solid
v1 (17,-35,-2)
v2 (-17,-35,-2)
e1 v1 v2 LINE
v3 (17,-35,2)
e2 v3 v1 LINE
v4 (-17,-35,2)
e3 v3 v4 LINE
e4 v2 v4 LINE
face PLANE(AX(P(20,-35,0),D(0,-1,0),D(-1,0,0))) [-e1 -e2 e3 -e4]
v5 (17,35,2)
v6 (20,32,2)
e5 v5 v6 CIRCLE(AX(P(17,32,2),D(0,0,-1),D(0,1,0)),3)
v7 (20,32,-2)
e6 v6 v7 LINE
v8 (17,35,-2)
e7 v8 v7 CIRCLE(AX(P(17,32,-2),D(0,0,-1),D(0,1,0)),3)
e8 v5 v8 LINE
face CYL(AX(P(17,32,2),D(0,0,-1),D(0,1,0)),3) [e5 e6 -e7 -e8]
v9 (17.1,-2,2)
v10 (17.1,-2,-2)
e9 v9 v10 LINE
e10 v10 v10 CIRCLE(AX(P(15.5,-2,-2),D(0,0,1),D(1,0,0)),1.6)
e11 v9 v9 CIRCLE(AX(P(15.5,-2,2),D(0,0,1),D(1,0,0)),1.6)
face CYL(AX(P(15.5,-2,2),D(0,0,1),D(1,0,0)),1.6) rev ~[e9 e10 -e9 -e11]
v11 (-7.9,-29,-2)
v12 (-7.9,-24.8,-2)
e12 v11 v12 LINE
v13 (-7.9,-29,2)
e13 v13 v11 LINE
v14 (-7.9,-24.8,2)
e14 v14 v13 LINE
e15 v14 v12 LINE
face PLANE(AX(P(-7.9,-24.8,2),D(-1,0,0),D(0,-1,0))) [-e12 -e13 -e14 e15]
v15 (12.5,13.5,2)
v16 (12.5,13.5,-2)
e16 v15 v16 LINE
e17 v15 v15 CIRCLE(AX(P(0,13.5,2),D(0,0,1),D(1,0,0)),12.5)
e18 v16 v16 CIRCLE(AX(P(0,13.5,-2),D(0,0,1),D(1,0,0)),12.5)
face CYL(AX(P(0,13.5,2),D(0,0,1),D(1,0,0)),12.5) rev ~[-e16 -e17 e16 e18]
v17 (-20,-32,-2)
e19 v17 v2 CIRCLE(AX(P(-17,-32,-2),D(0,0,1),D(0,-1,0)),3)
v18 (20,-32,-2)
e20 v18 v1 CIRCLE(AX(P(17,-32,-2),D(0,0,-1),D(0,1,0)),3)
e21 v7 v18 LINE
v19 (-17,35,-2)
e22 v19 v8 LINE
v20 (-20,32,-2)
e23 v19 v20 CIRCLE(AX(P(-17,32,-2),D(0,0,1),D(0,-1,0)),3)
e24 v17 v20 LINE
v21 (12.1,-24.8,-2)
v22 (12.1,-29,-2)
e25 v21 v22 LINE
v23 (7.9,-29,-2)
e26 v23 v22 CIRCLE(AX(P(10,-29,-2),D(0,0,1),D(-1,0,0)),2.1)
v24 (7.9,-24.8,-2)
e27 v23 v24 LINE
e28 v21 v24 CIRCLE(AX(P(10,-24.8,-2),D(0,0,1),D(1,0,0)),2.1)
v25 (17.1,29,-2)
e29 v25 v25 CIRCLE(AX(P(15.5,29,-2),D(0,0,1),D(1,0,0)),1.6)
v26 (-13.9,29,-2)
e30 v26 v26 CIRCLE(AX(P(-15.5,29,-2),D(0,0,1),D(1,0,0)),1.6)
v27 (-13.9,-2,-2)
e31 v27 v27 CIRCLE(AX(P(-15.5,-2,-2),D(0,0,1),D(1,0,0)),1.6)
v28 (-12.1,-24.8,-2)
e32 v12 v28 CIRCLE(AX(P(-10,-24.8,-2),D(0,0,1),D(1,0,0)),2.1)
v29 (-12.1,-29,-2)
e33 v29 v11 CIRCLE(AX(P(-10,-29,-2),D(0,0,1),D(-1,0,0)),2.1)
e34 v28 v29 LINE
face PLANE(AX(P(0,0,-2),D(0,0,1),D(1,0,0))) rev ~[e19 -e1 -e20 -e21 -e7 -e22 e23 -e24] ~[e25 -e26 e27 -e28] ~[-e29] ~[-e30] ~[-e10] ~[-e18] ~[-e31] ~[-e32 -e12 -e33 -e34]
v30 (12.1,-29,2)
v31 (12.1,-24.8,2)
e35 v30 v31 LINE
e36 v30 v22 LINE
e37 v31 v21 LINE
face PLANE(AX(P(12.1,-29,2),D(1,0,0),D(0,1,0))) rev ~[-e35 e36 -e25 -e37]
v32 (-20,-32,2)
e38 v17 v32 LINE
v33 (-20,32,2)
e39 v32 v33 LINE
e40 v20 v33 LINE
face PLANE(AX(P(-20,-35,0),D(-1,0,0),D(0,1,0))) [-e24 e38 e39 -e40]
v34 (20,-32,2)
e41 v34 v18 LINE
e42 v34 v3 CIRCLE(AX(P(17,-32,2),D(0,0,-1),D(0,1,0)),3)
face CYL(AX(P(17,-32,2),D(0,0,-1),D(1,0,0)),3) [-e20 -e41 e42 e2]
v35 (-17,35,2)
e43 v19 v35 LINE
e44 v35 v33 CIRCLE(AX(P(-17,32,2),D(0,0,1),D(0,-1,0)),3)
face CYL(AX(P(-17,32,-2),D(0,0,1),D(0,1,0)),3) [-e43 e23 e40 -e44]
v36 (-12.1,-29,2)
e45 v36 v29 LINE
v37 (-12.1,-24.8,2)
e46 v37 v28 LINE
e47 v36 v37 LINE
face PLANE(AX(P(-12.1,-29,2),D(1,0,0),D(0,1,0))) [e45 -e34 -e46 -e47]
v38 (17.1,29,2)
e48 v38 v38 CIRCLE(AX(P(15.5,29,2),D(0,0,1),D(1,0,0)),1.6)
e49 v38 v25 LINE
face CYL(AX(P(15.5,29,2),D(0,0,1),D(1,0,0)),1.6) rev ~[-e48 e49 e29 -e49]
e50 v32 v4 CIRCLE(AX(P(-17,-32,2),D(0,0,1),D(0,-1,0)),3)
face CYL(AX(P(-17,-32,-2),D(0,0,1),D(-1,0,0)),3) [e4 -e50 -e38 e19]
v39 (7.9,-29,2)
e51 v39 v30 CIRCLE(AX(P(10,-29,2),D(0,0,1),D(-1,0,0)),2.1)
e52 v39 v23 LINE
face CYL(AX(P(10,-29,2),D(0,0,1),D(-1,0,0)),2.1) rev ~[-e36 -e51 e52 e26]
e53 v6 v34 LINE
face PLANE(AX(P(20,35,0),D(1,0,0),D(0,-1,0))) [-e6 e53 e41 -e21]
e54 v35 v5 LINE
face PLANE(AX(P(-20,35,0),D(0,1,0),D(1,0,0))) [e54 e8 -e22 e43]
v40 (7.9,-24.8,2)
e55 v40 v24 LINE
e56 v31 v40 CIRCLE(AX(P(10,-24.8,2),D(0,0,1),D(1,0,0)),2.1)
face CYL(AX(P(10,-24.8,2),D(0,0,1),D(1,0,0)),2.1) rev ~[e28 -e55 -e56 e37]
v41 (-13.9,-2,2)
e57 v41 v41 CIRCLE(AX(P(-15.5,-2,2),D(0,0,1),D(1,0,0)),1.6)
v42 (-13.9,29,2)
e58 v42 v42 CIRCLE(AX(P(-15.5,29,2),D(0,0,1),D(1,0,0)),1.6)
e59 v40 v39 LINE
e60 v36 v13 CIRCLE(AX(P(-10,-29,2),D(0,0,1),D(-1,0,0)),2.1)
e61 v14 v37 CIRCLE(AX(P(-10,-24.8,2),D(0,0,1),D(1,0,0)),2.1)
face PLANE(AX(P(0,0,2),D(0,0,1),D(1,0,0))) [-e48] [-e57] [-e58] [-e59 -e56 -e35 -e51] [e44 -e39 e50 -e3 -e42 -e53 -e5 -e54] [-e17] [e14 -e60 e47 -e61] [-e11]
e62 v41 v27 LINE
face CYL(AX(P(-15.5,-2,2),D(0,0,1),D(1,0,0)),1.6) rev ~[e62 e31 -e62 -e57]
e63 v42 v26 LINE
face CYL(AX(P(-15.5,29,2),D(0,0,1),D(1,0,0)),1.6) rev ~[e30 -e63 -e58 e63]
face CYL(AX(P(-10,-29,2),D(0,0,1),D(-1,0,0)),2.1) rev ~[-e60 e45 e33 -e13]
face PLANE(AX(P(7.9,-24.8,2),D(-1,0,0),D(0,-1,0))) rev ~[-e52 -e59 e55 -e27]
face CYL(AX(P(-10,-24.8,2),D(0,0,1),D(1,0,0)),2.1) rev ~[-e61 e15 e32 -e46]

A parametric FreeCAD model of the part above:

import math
import FreeCAD as App
import Part
import Sketcher


def edges_at(feature, points):
    """Names of the edges that pass closest to the given points."""
    edges = feature.Shape.Edges
    near = lambda p: min(range(len(edges)), key=lambda i: edges[i].distToShape(Part.Vertex(*p))[0])
    return sorted({f"Edge{near(p) + 1}" for p in points})

doc = App.newDocument("Part")
body = doc.addObject("PartDesign::Body", "Body")

# Sketch on XY plane
sketch1 = body.newObject("Sketcher::SketchObject", "Sketch")
sketch1.AttachmentSupport = (doc.getObject("XY_Plane"), [""])
sketch1.MapMode = "FlatFace"
sketch1.addGeometry([
    Part.LineSegment(App.Vector(20, 35, 0), App.Vector(-20, 35, 0)),
    Part.LineSegment(App.Vector(-20, 35, 0), App.Vector(-20, -35, 0)),
    Part.LineSegment(App.Vector(-20, -35, 0), App.Vector(20, -35, 0)),
    Part.LineSegment(App.Vector(20, -35, 0), App.Vector(20, 35, 0)),
], False)
sketch1.addConstraint([
    Sketcher.Constraint("Coincident", 0, 2, 1, 1),
    Sketcher.Constraint("Coincident", 1, 2, 2, 1),
    Sketcher.Constraint("Coincident", 2, 2, 3, 1),
    Sketcher.Constraint("Coincident", 3, 2, 0, 1),
    Sketcher.Constraint("Horizontal", 0),
    Sketcher.Constraint("Vertical", 1),
    Sketcher.Constraint("Horizontal", 2),
    Sketcher.Constraint("Vertical", 3),
    Sketcher.Constraint("Symmetric", 0, 2, 2, 2, -1, 1),
    Sketcher.Constraint("DistanceX", 0, 2, 0, 1, 40.0),
    Sketcher.Constraint("DistanceY", 1, 2, 1, 1, 70.0),
])
pad1 = body.newObject("PartDesign::Pad", "Pad")
pad1.Profile = sketch1
pad1.Length = 4
pad1.Midplane = True

# Sketch on XY plane
sketch2 = body.newObject("Sketcher::SketchObject", "Sketch001")
sketch2.AttachmentSupport = (doc.getObject("XY_Plane"), [""])
sketch2.MapMode = "FlatFace"
sketch2.AttachmentOffset = App.Placement(App.Vector(0, 0, 2), App.Rotation())
sketch2.addGeometry([
    Part.Circle(App.Vector(0, 13.5, 0), App.Vector(0, 0, 1), 12.5),  # 0
    Part.Circle(App.Vector(-15.5, 29, 0), App.Vector(0, 0, 1), 1.6),  # 1
    Part.Circle(App.Vector(15.5, 29, 0), App.Vector(0, 0, 1), 1.6),  # 2
    Part.Circle(App.Vector(15.5, -2, 0), App.Vector(0, 0, 1), 1.6),  # 3
    Part.Circle(App.Vector(-15.5, -2, 0), App.Vector(0, 0, 1), 1.6),  # 4
], False)
sketch2.addConstraint([
    Sketcher.Constraint("Equal", 1, 2),
    Sketcher.Constraint("Equal", 2, 3),
    Sketcher.Constraint("Equal", 3, 4),
    Sketcher.Constraint("Symmetric", 1, 3, 2, 3, -2),
    Sketcher.Constraint("Symmetric", 3, 3, 4, 3, -2),
    Sketcher.Constraint("PointOnObject", 0, 3, -2),
    Sketcher.Constraint("Vertical", 2, 3, 3, 3),
    Sketcher.Constraint("Diameter", 0, 25.0),
    Sketcher.Constraint("Diameter", 1, 3.2),
    Sketcher.Constraint("DistanceX", 1, 3, 2, 3, 31.0),
    Sketcher.Constraint("DistanceY", 3, 3, 2, 3, 31.0),
    Sketcher.Constraint("DistanceY", -1, 1, 1, 3, 29.0),
    Sketcher.Constraint("DistanceY", -1, 1, 0, 3, 13.5),
])
pocket1 = body.newObject("PartDesign::Pocket", "Pocket")
pocket1.Profile = sketch2
pocket1.Type = "UpToFirst"

# Sketch on XY plane
sketch3 = body.newObject("Sketcher::SketchObject", "Sketch002")
sketch3.AttachmentSupport = (doc.getObject("XY_Plane"), [""])
sketch3.MapMode = "FlatFace"
sketch3.AttachmentOffset = App.Placement(App.Vector(0, 0, 2), App.Rotation())
sketch3.addGeometry([
    Part.LineSegment(App.Vector(-7.9, -29, 0), App.Vector(-7.9, -24.8, 0)),  # 0
    Part.ArcOfCircle(Part.Circle(App.Vector(-10, -24.8, 0), App.Vector(0, 0, 1), 2.1), math.radians(0), math.radians(180)),  # 1
    Part.LineSegment(App.Vector(-12.1, -24.8, 0), App.Vector(-12.1, -29, 0)),  # 2
    Part.ArcOfCircle(Part.Circle(App.Vector(-10, -29, 0), App.Vector(0, 0, 1), 2.1), math.radians(180), math.radians(360)),  # 3
    Part.LineSegment(App.Vector(12.1, -29, 0), App.Vector(12.1, -24.8, 0)),  # 4
    Part.ArcOfCircle(Part.Circle(App.Vector(10, -24.8, 0), App.Vector(0, 0, 1), 2.1), math.radians(0), math.radians(180)),  # 5
    Part.LineSegment(App.Vector(7.9, -24.8, 0), App.Vector(7.9, -29, 0)),  # 6
    Part.ArcOfCircle(Part.Circle(App.Vector(10, -29, 0), App.Vector(0, 0, 1), 2.1), math.radians(180), math.radians(360)),  # 7
], False)
sketch3.addConstraint([
    Sketcher.Constraint("Tangent", 0, 2, 1, 1),
    Sketcher.Constraint("Tangent", 1, 2, 2, 1),
    Sketcher.Constraint("Tangent", 2, 2, 3, 1),
    Sketcher.Constraint("Tangent", 3, 2, 0, 1),
    Sketcher.Constraint("Tangent", 4, 2, 5, 1),
    Sketcher.Constraint("Tangent", 5, 2, 6, 1),
    Sketcher.Constraint("Tangent", 6, 2, 7, 1),
    Sketcher.Constraint("Tangent", 7, 2, 4, 1),
    Sketcher.Constraint("Vertical", 0),
    Sketcher.Constraint("Vertical", 2),
    Sketcher.Constraint("Vertical", 4),
    Sketcher.Constraint("Vertical", 6),
    Sketcher.Constraint("Equal", 3, 5),
    Sketcher.Constraint("Symmetric", 1, 3, 5, 3, -2),
    Sketcher.Constraint("Horizontal", 3, 3, 7, 3),
    Sketcher.Constraint("Radius", 1, 2.1),
    Sketcher.Constraint("DistanceY", 0, 1, 0, 2, 4.2),
    Sketcher.Constraint("DistanceX", 1, 3, 5, 3, 20.0),
    Sketcher.Constraint("DistanceY", 3, 3, -1, 1, 29.0),
])
pocket2 = body.newObject("PartDesign::Pocket", "Pocket001")
pocket2.Profile = sketch3
pocket2.Type = "UpToFirst"
doc.recompute()

fillet = body.newObject("PartDesign::Fillet", "Fillet")
fillet.Base = (pocket2, edges_at(pocket2, [
    (-20, -35, 0),
    (20, -35, 0),
    (20, 35, 0),
    (-20, 35, 0),
]))
fillet.Radius = 3

doc.recompute()
